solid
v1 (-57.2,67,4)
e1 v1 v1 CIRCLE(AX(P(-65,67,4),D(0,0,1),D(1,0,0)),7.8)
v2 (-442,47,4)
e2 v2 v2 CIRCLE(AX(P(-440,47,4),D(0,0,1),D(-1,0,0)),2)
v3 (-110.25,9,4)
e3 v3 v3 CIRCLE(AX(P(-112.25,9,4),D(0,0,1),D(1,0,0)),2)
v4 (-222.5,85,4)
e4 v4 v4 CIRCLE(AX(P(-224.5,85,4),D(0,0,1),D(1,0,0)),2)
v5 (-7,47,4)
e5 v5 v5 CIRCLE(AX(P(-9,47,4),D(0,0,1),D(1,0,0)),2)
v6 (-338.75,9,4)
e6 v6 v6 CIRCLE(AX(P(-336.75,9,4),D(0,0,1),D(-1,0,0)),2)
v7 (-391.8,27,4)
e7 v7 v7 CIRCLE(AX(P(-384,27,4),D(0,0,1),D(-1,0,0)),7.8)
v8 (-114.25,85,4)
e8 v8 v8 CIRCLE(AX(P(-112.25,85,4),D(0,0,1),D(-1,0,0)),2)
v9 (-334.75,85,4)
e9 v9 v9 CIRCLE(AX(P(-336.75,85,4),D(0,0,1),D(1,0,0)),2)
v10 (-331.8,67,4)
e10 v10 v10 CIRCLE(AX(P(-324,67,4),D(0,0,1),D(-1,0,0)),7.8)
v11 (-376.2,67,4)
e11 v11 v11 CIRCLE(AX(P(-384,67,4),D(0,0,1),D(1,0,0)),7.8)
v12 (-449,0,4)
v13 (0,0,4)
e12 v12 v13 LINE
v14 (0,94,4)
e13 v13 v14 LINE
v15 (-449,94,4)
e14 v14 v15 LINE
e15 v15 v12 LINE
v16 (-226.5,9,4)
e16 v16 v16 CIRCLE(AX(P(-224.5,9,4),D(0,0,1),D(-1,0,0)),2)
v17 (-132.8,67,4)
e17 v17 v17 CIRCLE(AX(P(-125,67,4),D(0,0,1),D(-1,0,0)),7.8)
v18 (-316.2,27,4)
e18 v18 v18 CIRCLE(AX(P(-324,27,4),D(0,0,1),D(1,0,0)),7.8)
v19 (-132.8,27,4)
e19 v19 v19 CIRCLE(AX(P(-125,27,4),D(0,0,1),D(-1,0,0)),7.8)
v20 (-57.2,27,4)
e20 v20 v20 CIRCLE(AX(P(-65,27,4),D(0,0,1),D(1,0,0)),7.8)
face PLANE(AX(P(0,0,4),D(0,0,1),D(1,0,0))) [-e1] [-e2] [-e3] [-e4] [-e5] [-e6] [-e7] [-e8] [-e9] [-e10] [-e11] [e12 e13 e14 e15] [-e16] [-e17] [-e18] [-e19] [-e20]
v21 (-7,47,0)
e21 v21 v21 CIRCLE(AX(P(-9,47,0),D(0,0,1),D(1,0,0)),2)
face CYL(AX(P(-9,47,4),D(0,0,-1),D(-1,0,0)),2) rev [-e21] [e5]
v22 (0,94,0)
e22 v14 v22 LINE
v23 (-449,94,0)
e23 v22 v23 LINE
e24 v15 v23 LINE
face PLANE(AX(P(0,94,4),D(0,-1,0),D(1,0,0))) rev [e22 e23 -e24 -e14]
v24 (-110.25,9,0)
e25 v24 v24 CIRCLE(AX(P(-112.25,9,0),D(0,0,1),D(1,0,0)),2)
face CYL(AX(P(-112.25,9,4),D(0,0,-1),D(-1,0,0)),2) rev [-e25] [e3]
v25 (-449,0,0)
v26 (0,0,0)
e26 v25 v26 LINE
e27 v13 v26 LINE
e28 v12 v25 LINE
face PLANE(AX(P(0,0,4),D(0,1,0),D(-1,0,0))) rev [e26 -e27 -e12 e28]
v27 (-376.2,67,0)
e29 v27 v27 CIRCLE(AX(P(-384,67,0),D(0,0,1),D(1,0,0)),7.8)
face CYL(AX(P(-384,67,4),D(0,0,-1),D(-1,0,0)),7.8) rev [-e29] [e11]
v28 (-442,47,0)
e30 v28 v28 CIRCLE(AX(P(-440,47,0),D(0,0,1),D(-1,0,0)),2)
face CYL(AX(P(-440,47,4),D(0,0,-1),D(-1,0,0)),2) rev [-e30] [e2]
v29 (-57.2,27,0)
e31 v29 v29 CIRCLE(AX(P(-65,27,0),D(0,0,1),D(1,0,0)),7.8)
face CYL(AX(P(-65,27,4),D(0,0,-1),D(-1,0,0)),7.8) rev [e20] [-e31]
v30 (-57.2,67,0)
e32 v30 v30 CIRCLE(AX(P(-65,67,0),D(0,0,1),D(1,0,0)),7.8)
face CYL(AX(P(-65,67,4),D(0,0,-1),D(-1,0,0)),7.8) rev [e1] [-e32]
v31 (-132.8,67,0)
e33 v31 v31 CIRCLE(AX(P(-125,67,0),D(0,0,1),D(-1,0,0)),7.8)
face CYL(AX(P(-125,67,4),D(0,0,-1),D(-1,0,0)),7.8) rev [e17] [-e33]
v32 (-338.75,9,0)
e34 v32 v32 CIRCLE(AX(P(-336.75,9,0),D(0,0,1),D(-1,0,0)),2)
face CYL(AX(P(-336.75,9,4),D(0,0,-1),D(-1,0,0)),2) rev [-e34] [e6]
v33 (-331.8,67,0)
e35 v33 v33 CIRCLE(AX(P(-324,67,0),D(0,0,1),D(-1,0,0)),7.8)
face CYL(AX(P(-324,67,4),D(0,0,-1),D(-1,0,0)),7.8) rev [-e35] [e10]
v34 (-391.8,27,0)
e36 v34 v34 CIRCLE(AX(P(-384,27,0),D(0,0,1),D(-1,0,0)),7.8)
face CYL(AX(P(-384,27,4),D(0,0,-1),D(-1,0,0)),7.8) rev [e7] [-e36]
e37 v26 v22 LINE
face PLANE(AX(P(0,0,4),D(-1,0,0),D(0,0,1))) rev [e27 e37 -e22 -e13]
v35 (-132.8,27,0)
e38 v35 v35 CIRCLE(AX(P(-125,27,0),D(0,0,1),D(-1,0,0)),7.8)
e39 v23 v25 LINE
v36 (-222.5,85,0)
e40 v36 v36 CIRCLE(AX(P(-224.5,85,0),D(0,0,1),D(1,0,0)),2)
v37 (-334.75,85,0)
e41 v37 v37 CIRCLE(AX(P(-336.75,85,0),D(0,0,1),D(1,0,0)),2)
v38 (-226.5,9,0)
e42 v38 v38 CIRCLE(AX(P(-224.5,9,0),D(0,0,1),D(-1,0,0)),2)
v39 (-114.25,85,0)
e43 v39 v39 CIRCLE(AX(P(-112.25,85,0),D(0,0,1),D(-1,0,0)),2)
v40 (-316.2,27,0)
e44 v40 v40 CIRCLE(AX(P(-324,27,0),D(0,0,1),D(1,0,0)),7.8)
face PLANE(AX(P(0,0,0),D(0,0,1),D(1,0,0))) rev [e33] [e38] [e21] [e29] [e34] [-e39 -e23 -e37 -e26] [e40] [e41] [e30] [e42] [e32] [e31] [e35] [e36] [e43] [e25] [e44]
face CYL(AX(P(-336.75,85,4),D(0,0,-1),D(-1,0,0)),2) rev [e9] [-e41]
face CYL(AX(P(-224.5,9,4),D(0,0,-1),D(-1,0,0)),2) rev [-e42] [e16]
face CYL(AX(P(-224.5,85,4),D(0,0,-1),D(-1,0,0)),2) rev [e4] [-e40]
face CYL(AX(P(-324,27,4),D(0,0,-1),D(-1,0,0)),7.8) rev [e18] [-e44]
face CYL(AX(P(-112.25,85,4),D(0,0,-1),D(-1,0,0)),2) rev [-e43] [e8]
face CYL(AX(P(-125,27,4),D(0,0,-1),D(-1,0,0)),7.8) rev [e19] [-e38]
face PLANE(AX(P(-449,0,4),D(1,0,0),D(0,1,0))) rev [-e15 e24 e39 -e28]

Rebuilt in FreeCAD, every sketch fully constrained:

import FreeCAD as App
import Part
import Sketcher

doc = App.newDocument("Part")
body = doc.addObject("PartDesign::Body", "Body")

# Sketch on XY plane
sketch1 = body.newObject("Sketcher::SketchObject", "Sketch")
sketch1.AttachmentSupport = (doc.getObject("XY_Plane"), [""])
sketch1.MapMode = "FlatFace"
sketch1.addGeometry([
    Part.LineSegment(App.Vector(-449, 94, 0), App.Vector(-449, 0, 0)),  # 0
    Part.LineSegment(App.Vector(-449, 0, 0), App.Vector(0, 0, 0)),  # 1
    Part.LineSegment(App.Vector(0, 0, 0), App.Vector(0, 94, 0)),  # 2
    Part.LineSegment(App.Vector(0, 94, 0), App.Vector(-449, 94, 0)),  # 3
    Part.Circle(App.Vector(-336.75, 9, 0), App.Vector(0, 0, 1), 2),  # 4
    Part.Circle(App.Vector(-384, 27, 0), App.Vector(0, 0, 1), 7.8),  # 5
    Part.Circle(App.Vector(-324, 27, 0), App.Vector(0, 0, 1), 7.8),  # 6
    Part.Circle(App.Vector(-224.5, 9, 0), App.Vector(0, 0, 1), 2),  # 7
    Part.Circle(App.Vector(-112.25, 9, 0), App.Vector(0, 0, 1), 2),  # 8
    Part.Circle(App.Vector(-125, 27, 0), App.Vector(0, 0, 1), 7.8),  # 9
    Part.Circle(App.Vector(-65, 27, 0), App.Vector(0, 0, 1), 7.8),  # 10
    Part.Circle(App.Vector(-440, 47, 0), App.Vector(0, 0, 1), 2),  # 11
    Part.Circle(App.Vector(-384, 67, 0), App.Vector(0, 0, 1), 7.8),  # 12
    Part.Circle(App.Vector(-336.75, 85, 0), App.Vector(0, 0, 1), 2),  # 13
    Part.Circle(App.Vector(-324, 67, 0), App.Vector(0, 0, 1), 7.8),  # 14
    Part.Circle(App.Vector(-9, 47, 0), App.Vector(0, 0, 1), 2),  # 15
    Part.Circle(App.Vector(-125, 67, 0), App.Vector(0, 0, 1), 7.8),  # 16
    Part.Circle(App.Vector(-224.5, 85, 0), App.Vector(0, 0, 1), 2),  # 17
    Part.Circle(App.Vector(-65, 67, 0), App.Vector(0, 0, 1), 7.8),  # 18
    Part.Circle(App.Vector(-112.25, 85, 0), App.Vector(0, 0, 1), 2),  # 19
], False)
sketch1.addConstraint([
    Sketcher.Constraint("Coincident", 0, 2, 1, 1),
    Sketcher.Constraint("Coincident", 1, 2, 2, 1),
    Sketcher.Constraint("Coincident", 2, 2, 3, 1),
    Sketcher.Constraint("Coincident", 3, 2, 0, 1),
    Sketcher.Constraint("Vertical", 0),
    Sketcher.Constraint("Horizontal", 1),
    Sketcher.Constraint("Vertical", 2),
    Sketcher.Constraint("Horizontal", 3),
    Sketcher.Constraint("Coincident", 1, 2, -1, 1),
    Sketcher.Constraint("Equal", 5, 6),
    Sketcher.Constraint("Equal", 4, 7),
    Sketcher.Constraint("Equal", 7, 8),
    Sketcher.Constraint("Equal", 6, 9),
    Sketcher.Constraint("Equal", 9, 10),
    Sketcher.Constraint("Equal", 8, 11),
    Sketcher.Constraint("Equal", 10, 12),
    Sketcher.Constraint("Equal", 11, 13),
    Sketcher.Constraint("Equal", 12, 14),
    Sketcher.Constraint("Equal", 13, 15),
    Sketcher.Constraint("Equal", 14, 16),
    Sketcher.Constraint("Equal", 15, 17),
    Sketcher.Constraint("Equal", 16, 18),
    Sketcher.Constraint("Equal", 17, 19),
    Sketcher.Constraint("Horizontal", 5, 3, 6, 3),
    Sketcher.Constraint("Horizontal", 4, 3, 7, 3),
    Sketcher.Constraint("Horizontal", 7, 3, 8, 3),
    Sketcher.Constraint("Horizontal", 6, 3, 9, 3),
    Sketcher.Constraint("Horizontal", 9, 3, 10, 3),
    Sketcher.Constraint("Horizontal", 12, 3, 14, 3),
    Sketcher.Constraint("Horizontal", 11, 3, 15, 3),
    Sketcher.Constraint("Horizontal", 14, 3, 16, 3),
    Sketcher.Constraint("Horizontal", 13, 3, 17, 3),
    Sketcher.Constraint("Horizontal", 16, 3, 18, 3),
    Sketcher.Constraint("Horizontal", 17, 3, 19, 3),
    Sketcher.Constraint("Vertical", 5, 3, 12, 3),
    Sketcher.Constraint("Vertical", 4, 3, 13, 3),
    Sketcher.Constraint("Vertical", 6, 3, 14, 3),
    Sketcher.Constraint("Vertical", 9, 3, 16, 3),
    Sketcher.Constraint("Vertical", 7, 3, 17, 3),
    Sketcher.Constraint("Vertical", 10, 3, 18, 3),
    Sketcher.Constraint("Vertical", 8, 3, 19, 3),
    Sketcher.Constraint("Diameter", 4, 4.0),
    Sketcher.Constraint("Diameter", 5, 15.6),
    Sketcher.Constraint("DistanceX", 1, 1, 1, 2, 449.0),
    Sketcher.Constraint("DistanceY", 0, 2, 0, 1, 94.0),
    Sketcher.Constraint("DistanceY", -1, 1, 4, 3, 9.0),
    Sketcher.Constraint("DistanceX", 5, 3, -1, 1, 384.0),
    Sketcher.Constraint("DistanceY", -1, 1, 5, 3, 27.0),
    Sketcher.Constraint("DistanceX", 6, 3, -1, 1, 324.0),
    Sketcher.Constraint("DistanceX", 9, 3, -1, 1, 125.0),
    Sketcher.Constraint("DistanceX", 10, 3, -1, 1, 65.0),
    Sketcher.Constraint("DistanceX", 11, 3, -1, 1, 440.0),
    Sketcher.Constraint("DistanceY", -1, 1, 11, 3, 47.0),
    Sketcher.Constraint("DistanceY", -1, 1, 12, 3, 67.0),
    Sketcher.Constraint("DistanceY", -1, 1, 13, 3, 85.0),
    Sketcher.Constraint("DistanceX", 15, 3, -1, 1, 9.0),
    Sketcher.Constraint("DistanceX", 7, 3, -1, 1, 224.5),
    Sketcher.Constraint("DistanceX", 4, 3, 8, 3, 224.5),
    Sketcher.Constraint("DistanceX", 4, 3, -1, 1, 336.75),
])
pad1 = body.newObject("PartDesign::Pad", "Pad")
pad1.Profile = sketch1
pad1.Length = 4

doc.recompute()
